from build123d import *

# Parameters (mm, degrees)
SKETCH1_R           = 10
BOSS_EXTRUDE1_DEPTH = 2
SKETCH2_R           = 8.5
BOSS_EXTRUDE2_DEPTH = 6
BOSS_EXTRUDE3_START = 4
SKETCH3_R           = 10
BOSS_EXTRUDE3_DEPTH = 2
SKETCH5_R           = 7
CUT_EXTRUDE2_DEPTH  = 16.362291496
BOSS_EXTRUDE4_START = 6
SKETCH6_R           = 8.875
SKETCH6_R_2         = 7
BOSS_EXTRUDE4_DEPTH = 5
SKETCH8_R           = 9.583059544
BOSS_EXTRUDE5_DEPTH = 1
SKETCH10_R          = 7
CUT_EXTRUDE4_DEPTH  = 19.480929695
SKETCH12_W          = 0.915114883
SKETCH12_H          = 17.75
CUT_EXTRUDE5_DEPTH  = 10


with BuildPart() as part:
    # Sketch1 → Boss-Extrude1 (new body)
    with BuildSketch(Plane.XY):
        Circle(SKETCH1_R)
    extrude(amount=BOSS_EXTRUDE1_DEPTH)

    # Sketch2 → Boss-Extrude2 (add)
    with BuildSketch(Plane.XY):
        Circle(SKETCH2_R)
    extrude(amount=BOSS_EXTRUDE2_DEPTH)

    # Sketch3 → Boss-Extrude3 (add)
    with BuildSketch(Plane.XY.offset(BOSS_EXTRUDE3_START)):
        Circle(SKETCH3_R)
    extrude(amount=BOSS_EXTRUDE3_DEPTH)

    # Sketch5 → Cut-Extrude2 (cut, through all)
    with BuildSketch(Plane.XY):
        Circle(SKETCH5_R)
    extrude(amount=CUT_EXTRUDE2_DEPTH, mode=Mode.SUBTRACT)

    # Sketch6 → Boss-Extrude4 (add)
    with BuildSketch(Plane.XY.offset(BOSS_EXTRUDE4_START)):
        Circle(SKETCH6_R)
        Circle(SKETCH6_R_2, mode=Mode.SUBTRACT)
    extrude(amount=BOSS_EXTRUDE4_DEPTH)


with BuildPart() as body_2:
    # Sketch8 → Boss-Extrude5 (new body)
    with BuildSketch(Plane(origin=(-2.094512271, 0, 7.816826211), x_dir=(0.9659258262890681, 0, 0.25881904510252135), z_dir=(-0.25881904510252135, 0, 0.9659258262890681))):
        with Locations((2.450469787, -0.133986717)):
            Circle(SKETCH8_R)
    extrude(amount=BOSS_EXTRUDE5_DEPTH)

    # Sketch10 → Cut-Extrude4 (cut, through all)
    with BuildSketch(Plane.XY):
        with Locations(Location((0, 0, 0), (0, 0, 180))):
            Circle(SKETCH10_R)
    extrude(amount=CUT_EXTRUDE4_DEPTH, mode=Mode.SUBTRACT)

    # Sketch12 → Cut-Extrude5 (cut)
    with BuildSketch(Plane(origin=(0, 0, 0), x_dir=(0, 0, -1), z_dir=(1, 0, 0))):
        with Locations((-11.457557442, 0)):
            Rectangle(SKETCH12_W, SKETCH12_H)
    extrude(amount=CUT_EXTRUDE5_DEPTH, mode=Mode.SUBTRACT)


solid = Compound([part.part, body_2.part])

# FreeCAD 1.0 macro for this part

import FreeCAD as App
import Part
import Sketcher
Q = App.Units.Quantity


def add_polygon(sketch, points):
    """Adds a closed chain of lines whose ends are joined by coincident constraints."""
    first, n = sketch.GeometryCount, len(points)
    for a, b in zip(points, points[1:] + points[:1]):
        sketch.addGeometry(Part.LineSegment(App.Vector(*a, 0), App.Vector(*b, 0)), False)
    for i in range(n):
        sketch.addConstraint(Sketcher.Constraint("Coincident", first + i, 2, first + (i + 1) % n, 1))

doc = App.newDocument("Part")
params = doc.addObject("Spreadsheet::Sheet", "Params")
for row, (alias, value) in enumerate([
    ("sketch1_diameter", "20 mm"),
    ("pad1_length", "2 mm"),
    ("sketch2_diameter", "17 mm"),
    ("pad2_length", "6 mm"),
    ("sketch3_diameter", "20 mm"),
    ("pad3_length", "2 mm"),
    ("sketch4_diameter", "14 mm"),
    ("sketch5_diameter", "14 mm"),
    ("sketch5_diameter2", "17.75 mm"),
    ("pad4_length", "5 mm"),
    ("pad5_length", "1 mm"),
    ("sketch7_diameter", "14 mm"),
    ("sketch8_width", "17.75 mm"),
    ("pocket3_length", "10 mm"),
], start=1):
    params.set(f"A{row}", alias)
    params.set(f"B{row}", "=" + value)
    params.setAlias(f"B{row}", alias)

body = doc.addObject("PartDesign::Body", "Body")

sketch1 = body.newObject("Sketcher::SketchObject", "Sketch")
sketch1.AttachmentSupport = (doc.getObject("XY_Plane"), [""])
sketch1.MapMode = "FlatFace"
sketch1.addGeometry(Part.Circle(App.Vector(0, 0, 0), App.Vector(0, 0, 1), 10), False)
sketch1.addConstraint([
    Sketcher.Constraint("Coincident", 0, 3, -1, 1),
    Sketcher.Constraint("Diameter", 0, Q("20 mm")),
])
sketch1.setExpression("Constraints[1]", "Params.sketch1_diameter")
pad1 = body.newObject("PartDesign::Pad", "Pad")
pad1.Profile = sketch1
pad1.setExpression("Length", "Params.pad1_length")

sketch2 = body.newObject("Sketcher::SketchObject", "Sketch001")
sketch2.AttachmentSupport = (doc.getObject("XY_Plane"), [""])
sketch2.MapMode = "FlatFace"
sketch2.addGeometry(Part.Circle(App.Vector(0, 0, 0), App.Vector(0, 0, 1), 8), False)
sketch2.addConstraint([
    Sketcher.Constraint("Coincident", 0, 3, -1, 1),
    Sketcher.Constraint("Diameter", 0, Q("17 mm")),
])
sketch2.setExpression("Constraints[1]", "Params.sketch2_diameter")
pad2 = body.newObject("PartDesign::Pad", "Pad001")
pad2.Profile = sketch2
pad2.setExpression("Length", "Params.pad2_length")

sketch3 = body.newObject("Sketcher::SketchObject", "Sketch002")
sketch3.AttachmentSupport = (doc.getObject("XY_Plane"), [""])
sketch3.MapMode = "FlatFace"
sketch3.AttachmentOffset = App.Placement(App.Vector(0, 0, 4), App.Rotation())
sketch3.addGeometry(Part.Circle(App.Vector(0, 0, 0), App.Vector(0, 0, 1), 10), False)
sketch3.addConstraint([
    Sketcher.Constraint("Coincident", 0, 3, -1, 1),
    Sketcher.Constraint("Diameter", 0, Q("20 mm")),
])
sketch3.setExpression("Constraints[1]", "Params.sketch3_diameter")
pad3 = body.newObject("PartDesign::Pad", "Pad002")
pad3.Profile = sketch3
pad3.setExpression("Length", "Params.pad3_length")

sketch4 = body.newObject("Sketcher::SketchObject", "Sketch003")
sketch4.AttachmentSupport = (doc.getObject("XY_Plane"), [""])
sketch4.MapMode = "FlatFace"
sketch4.addGeometry(Part.Circle(App.Vector(0, 0, 0), App.Vector(0, 0, 1), 7), False)
sketch4.addConstraint([
    Sketcher.Constraint("Coincident", 0, 3, -1, 1),
    Sketcher.Constraint("Diameter", 0, Q("14 mm")),
])
sketch4.setExpression("Constraints[1]", "Params.sketch4_diameter")
pocket1 = body.newObject("PartDesign::Pocket", "Pocket")
pocket1.Profile = sketch4
pocket1.Type = "ThroughAll"
pocket1.Reversed = True

sketch5 = body.newObject("Sketcher::SketchObject", "Sketch004")
sketch5.AttachmentSupport = (doc.getObject("XY_Plane"), [""])
sketch5.MapMode = "FlatFace"
sketch5.AttachmentOffset = App.Placement(App.Vector(0, 0, 6), App.Rotation())
sketch5.addGeometry([
    Part.Circle(App.Vector(0, 0, 0), App.Vector(0, 0, 1), 9),
    Part.Circle(App.Vector(0, 0, 0), App.Vector(0, 0, 1), 7),
], False)
sketch5.addConstraint([
    Sketcher.Constraint("Coincident", 0, 3, -1, 1),
    Sketcher.Constraint("Coincident", 1, 3, -1, 1),
    Sketcher.Constraint("Diameter", 1, Q("14 mm")),
    Sketcher.Constraint("Diameter", 0, Q("17.75 mm")),
])
sketch5.setExpression("Constraints[2]", "Params.sketch5_diameter")
sketch5.setExpression("Constraints[3]", "Params.sketch5_diameter2")
pad4 = body.newObject("PartDesign::Pad", "Pad003")
pad4.Profile = sketch5
pad4.setExpression("Length", "Params.pad4_length")
body2 = doc.addObject("PartDesign::Body", "Body001")

sketch6 = body2.newObject("Sketcher::SketchObject", "Sketch005")
sketch6.Placement = App.Placement(App.Vector(-2.094512, 0, 7.816826), App.Rotation(App.Vector(0.965925826, 0, 0.258819045), App.Vector(0, 0.999999999, 0), App.Vector(-0.258819045, 0, 0.965925826), "ZXY"))
sketch6.addGeometry(Part.Circle(App.Vector(2, 0, 0), App.Vector(0, 0, 1), 10), False)
sketch6.addConstraint([
    Sketcher.Constraint("Diameter", 0, Q("19.166119 mm")),
    Sketcher.Constraint("DistanceX", -1, 1, 0, 3, Q("2.45047 mm")),
    Sketcher.Constraint("DistanceY", 0, 3, -1, 1, Q("0.133987 mm")),
])
pad5 = body2.newObject("PartDesign::Pad", "Pad004")
pad5.Profile = sketch6
pad5.setExpression("Length", "Params.pad5_length")

sketch7 = body2.newObject("Sketcher::SketchObject", "Sketch006")
sketch7.AttachmentSupport = (doc.getObject("XY_Plane001"), [""])
sketch7.MapMode = "FlatFace"
sketch7.addGeometry(Part.Circle(App.Vector(0, 0, 0), App.Vector(0, 0, 1), 7), False)
sketch7.addConstraint([
    Sketcher.Constraint("Coincident", 0, 3, -1, 1),
    Sketcher.Constraint("Diameter", 0, Q("14 mm")),
])
sketch7.setExpression("Constraints[1]", "Params.sketch7_diameter")
pocket2 = body2.newObject("PartDesign::Pocket", "Pocket001")
pocket2.Profile = sketch7
pocket2.Type = "ThroughAll"
pocket2.Reversed = True

sketch8 = body2.newObject("Sketcher::SketchObject", "Sketch007")
sketch8.AttachmentSupport = (doc.getObject("YZ_Plane001"), [""])
sketch8.MapMode = "FlatFace"
add_polygon(sketch8, [(8.9, 11.9), (-8.9, 11.9), (-8.9, 11), (8.9, 11)])
sketch8.addConstraint([
    Sketcher.Constraint("Horizontal", 0),
    Sketcher.Constraint("Vertical", 1),
    Sketcher.Constraint("Horizontal", 2),
    Sketcher.Constraint("Vertical", 3),
    Sketcher.Constraint("DistanceY", -1, 1, 1, 2, Q("11 mm")),
    Sketcher.Constraint("DistanceX", 0, 2, 0, 1, Q("17.75 mm")),
    Sketcher.Constraint("DistanceX", 0, 2, -1, 1, Q("8.875 mm")),
    Sketcher.Constraint("DistanceY", 1, 2, 1, 1, Q("0.915115 mm")),
])
sketch8.setExpression("Constraints[9]", "Params.sketch8_width")
pocket3 = body2.newObject("PartDesign::Pocket", "Pocket002")
pocket3.Profile = sketch8
pocket3.setExpression("Length", "Params.pocket3_length")
pocket3.Reversed = True

doc.recompute()
